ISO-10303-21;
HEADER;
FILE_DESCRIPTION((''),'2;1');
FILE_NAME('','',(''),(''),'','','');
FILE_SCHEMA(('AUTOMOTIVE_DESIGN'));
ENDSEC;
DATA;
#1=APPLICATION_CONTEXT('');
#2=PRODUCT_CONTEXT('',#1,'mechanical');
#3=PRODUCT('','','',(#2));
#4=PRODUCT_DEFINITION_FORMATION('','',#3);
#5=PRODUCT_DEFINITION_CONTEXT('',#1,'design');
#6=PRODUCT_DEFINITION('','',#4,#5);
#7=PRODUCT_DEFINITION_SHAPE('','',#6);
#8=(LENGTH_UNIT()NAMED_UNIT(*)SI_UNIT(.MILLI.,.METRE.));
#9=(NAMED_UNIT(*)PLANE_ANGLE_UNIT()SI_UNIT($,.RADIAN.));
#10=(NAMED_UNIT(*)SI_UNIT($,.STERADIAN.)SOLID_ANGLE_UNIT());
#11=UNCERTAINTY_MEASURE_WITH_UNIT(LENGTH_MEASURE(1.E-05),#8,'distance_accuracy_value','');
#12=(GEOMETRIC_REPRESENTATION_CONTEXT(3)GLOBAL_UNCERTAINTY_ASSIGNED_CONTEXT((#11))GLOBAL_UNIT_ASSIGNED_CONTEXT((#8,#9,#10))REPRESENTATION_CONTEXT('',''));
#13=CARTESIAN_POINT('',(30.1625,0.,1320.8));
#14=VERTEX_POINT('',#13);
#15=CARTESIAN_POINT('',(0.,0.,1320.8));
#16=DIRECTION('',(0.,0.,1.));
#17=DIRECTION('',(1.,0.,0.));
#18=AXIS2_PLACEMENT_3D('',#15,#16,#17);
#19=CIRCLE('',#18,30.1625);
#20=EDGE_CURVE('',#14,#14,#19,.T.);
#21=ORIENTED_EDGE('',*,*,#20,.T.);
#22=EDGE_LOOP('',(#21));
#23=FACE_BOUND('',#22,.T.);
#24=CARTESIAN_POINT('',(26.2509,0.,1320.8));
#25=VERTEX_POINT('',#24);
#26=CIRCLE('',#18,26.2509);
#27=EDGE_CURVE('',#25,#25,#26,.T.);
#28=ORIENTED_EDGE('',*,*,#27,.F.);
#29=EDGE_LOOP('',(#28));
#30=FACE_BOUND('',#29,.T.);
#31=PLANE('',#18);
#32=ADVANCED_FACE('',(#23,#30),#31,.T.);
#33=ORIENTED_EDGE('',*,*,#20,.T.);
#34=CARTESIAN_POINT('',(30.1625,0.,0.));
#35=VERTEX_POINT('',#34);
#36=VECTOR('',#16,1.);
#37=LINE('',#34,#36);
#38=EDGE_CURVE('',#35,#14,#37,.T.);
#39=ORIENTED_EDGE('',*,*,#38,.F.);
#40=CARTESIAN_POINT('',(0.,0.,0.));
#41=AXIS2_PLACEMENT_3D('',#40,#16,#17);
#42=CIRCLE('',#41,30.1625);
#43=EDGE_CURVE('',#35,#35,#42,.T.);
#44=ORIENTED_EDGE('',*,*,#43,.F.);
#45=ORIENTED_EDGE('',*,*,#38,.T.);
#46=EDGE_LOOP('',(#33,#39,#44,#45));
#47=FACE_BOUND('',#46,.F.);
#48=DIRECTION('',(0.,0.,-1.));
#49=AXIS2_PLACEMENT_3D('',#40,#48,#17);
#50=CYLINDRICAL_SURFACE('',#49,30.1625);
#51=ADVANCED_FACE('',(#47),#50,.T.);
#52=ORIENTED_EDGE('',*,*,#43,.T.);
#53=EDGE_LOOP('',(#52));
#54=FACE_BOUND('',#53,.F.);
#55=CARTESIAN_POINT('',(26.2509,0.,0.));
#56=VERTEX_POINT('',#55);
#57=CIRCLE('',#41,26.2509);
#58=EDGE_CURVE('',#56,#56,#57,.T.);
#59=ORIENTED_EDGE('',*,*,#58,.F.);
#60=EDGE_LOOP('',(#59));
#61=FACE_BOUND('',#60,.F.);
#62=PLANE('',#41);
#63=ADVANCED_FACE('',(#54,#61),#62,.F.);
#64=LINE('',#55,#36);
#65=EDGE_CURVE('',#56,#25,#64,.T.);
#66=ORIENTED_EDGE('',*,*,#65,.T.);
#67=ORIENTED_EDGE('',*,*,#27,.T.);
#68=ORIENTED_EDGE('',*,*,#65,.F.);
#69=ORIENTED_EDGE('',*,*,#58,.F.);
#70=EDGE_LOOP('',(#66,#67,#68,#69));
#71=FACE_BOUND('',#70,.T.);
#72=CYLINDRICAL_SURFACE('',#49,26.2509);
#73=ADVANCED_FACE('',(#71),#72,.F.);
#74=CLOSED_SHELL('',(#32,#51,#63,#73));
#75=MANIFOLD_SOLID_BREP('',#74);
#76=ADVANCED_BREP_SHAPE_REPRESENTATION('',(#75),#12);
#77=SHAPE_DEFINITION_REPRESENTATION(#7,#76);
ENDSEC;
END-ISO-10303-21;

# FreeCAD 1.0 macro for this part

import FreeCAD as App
import Part
import Sketcher
Q = App.Units.Quantity

doc = App.newDocument("Part")
params = doc.addObject("Spreadsheet::Sheet", "Params")
for row, (alias, value) in enumerate([
    ("sketch1_diameter", "2.375 in"),
    ("sketch1_diameter2", "2.067 in"),
    ("pad1_length", "52 in"),
], start=1):
    params.set(f"A{row}", alias)
    params.set(f"B{row}", "=" + value)
    params.setAlias(f"B{row}", alias)

body = doc.addObject("PartDesign::Body", "Body")

# Sketch on XY plane
sketch1 = body.newObject("Sketcher::SketchObject", "Sketch")
sketch1.AttachmentSupport = (doc.getObject("XY_Plane"), [""])
sketch1.MapMode = "FlatFace"
sketch1.addGeometry(Part.Circle(App.Vector(0, 0, 0), App.Vector(0, 0, 1), 30), False)
sketch1.addGeometry(Part.Circle(App.Vector(0, 0, 0), App.Vector(0, 0, 1), 26), False)
sketch1.addConstraint(Sketcher.Constraint("Coincident", 0, 3, -1, 1))
sketch1.addConstraint(Sketcher.Constraint("Coincident", 1, 3, -1, 1))
sketch1.addConstraint(Sketcher.Constraint("Diameter", 0, Q("2.375 in")))
sketch1.addConstraint(Sketcher.Constraint("Diameter", 1, Q("2.067 in")))
sketch1.setExpression("Constraints[2]", "Params.sketch1_diameter")
sketch1.setExpression("Constraints[3]", "Params.sketch1_diameter2")
pad1 = body.newObject("PartDesign::Pad", "Pad")
pad1.Profile = sketch1
pad1.setExpression("Length", "Params.pad1_length")

doc.recompute()
